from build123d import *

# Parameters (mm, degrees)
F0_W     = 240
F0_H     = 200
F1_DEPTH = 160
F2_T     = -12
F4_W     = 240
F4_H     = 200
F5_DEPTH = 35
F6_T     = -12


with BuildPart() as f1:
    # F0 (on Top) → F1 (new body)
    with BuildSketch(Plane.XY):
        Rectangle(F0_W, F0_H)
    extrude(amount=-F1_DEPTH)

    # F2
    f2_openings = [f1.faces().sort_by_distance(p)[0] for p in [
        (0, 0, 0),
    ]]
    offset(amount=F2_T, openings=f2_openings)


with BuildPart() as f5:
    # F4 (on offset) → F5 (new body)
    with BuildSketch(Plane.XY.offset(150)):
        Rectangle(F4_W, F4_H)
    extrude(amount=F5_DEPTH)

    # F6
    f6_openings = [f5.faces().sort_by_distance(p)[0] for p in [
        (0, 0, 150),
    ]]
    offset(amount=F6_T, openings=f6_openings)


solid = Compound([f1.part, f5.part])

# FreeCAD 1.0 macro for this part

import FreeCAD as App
import Part
import Sketcher

V = App.Vector
Q = App.Units.Quantity


def faces_at(feature, points):
    """Names of the faces that lie closest to the given points."""
    faces = feature.Shape.Faces
    near = lambda p: min(range(len(faces)), key=lambda i: faces[i].distToShape(Part.Vertex(*p))[0])
    return sorted({f"Face{near(p) + 1}" for p in points})

doc = App.newDocument("Part")
body = doc.addObject("PartDesign::Body", "Body")

sketch1 = body.newObject("Sketcher::SketchObject", "Sketch")
sketch1.AttachmentSupport = (doc.getObject("XY_Plane"), [""])
sketch1.MapMode = "FlatFace"
sketch1.addGeometry([
    Part.LineSegment(V(-120, 100, 0), V(-120, -100, 0)),
    Part.LineSegment(V(-120, -100, 0), V(120, -100, 0)),
    Part.LineSegment(V(120, -100, 0), V(120, 100, 0)),
    Part.LineSegment(V(120, 100, 0), V(-120, 100, 0)),
], False)
sketch1.addConstraint([
    Sketcher.Constraint("Coincident", 0, 2, 1, 1),
    Sketcher.Constraint("Coincident", 1, 2, 2, 1),
    Sketcher.Constraint("Coincident", 2, 2, 3, 1),
    Sketcher.Constraint("Coincident", 3, 2, 0, 1),
    Sketcher.Constraint("Vertical", 0),
    Sketcher.Constraint("Horizontal", 1),
    Sketcher.Constraint("Vertical", 2),
    Sketcher.Constraint("Horizontal", 3),
    Sketcher.Constraint("Symmetric", 0, 2, 2, 2, -1, 1),
    Sketcher.Constraint("DistanceX", 1, 1, 1, 2, Q("240 mm")),
    Sketcher.Constraint("DistanceY", 0, 2, 0, 1, Q("200 mm")),
])
pad1 = body.newObject("PartDesign::Pad", "Pad")
pad1.Profile = sketch1
pad1.Length = 160
pad1.Reversed = True
doc.recompute()

thickness = body.newObject("PartDesign::Thickness", "Thickness")
thickness.Base = (pad1, faces_at(pad1, [(0, 0, 0)]))
thickness.Value = 12
thickness.Reversed = True
thickness.Join = "Arc"
body2 = doc.addObject("PartDesign::Body", "Body001")

sketch2 = body2.newObject("Sketcher::SketchObject", "Sketch001")
sketch2.AttachmentSupport = (doc.getObject("XY_Plane001"), [""])
sketch2.MapMode = "FlatFace"
sketch2.AttachmentOffset = App.Placement(V(0, 0, 150), App.Rotation())
sketch2.addGeometry([
    Part.LineSegment(V(-120, 100, 0), V(-120, -100, 0)),
    Part.LineSegment(V(-120, -100, 0), V(120, -100, 0)),
    Part.LineSegment(V(120, -100, 0), V(120, 100, 0)),
    Part.LineSegment(V(120, 100, 0), V(-120, 100, 0)),
], False)
sketch2.addConstraint([
    Sketcher.Constraint("Coincident", 0, 2, 1, 1),
    Sketcher.Constraint("Coincident", 1, 2, 2, 1),
    Sketcher.Constraint("Coincident", 2, 2, 3, 1),
    Sketcher.Constraint("Coincident", 3, 2, 0, 1),
    Sketcher.Constraint("Vertical", 0),
    Sketcher.Constraint("Horizontal", 1),
    Sketcher.Constraint("Vertical", 2),
    Sketcher.Constraint("Horizontal", 3),
    Sketcher.Constraint("Symmetric", 0, 2, 2, 2, -1, 1),
    Sketcher.Constraint("DistanceX", 1, 1, 1, 2, Q("240 mm")),
    Sketcher.Constraint("DistanceY", 0, 2, 0, 1, Q("200 mm")),
])
pad2 = body2.newObject("PartDesign::Pad", "Pad001")
pad2.Profile = sketch2
pad2.Length = 35
doc.recompute()

thickness2 = body2.newObject("PartDesign::Thickness", "Thickness001")
thickness2.Base = (pad2, faces_at(pad2, [(0, 0, 150)]))
thickness2.Value = 12
thickness2.Reversed = True
thickness2.Join = "Arc"

doc.recompute()
